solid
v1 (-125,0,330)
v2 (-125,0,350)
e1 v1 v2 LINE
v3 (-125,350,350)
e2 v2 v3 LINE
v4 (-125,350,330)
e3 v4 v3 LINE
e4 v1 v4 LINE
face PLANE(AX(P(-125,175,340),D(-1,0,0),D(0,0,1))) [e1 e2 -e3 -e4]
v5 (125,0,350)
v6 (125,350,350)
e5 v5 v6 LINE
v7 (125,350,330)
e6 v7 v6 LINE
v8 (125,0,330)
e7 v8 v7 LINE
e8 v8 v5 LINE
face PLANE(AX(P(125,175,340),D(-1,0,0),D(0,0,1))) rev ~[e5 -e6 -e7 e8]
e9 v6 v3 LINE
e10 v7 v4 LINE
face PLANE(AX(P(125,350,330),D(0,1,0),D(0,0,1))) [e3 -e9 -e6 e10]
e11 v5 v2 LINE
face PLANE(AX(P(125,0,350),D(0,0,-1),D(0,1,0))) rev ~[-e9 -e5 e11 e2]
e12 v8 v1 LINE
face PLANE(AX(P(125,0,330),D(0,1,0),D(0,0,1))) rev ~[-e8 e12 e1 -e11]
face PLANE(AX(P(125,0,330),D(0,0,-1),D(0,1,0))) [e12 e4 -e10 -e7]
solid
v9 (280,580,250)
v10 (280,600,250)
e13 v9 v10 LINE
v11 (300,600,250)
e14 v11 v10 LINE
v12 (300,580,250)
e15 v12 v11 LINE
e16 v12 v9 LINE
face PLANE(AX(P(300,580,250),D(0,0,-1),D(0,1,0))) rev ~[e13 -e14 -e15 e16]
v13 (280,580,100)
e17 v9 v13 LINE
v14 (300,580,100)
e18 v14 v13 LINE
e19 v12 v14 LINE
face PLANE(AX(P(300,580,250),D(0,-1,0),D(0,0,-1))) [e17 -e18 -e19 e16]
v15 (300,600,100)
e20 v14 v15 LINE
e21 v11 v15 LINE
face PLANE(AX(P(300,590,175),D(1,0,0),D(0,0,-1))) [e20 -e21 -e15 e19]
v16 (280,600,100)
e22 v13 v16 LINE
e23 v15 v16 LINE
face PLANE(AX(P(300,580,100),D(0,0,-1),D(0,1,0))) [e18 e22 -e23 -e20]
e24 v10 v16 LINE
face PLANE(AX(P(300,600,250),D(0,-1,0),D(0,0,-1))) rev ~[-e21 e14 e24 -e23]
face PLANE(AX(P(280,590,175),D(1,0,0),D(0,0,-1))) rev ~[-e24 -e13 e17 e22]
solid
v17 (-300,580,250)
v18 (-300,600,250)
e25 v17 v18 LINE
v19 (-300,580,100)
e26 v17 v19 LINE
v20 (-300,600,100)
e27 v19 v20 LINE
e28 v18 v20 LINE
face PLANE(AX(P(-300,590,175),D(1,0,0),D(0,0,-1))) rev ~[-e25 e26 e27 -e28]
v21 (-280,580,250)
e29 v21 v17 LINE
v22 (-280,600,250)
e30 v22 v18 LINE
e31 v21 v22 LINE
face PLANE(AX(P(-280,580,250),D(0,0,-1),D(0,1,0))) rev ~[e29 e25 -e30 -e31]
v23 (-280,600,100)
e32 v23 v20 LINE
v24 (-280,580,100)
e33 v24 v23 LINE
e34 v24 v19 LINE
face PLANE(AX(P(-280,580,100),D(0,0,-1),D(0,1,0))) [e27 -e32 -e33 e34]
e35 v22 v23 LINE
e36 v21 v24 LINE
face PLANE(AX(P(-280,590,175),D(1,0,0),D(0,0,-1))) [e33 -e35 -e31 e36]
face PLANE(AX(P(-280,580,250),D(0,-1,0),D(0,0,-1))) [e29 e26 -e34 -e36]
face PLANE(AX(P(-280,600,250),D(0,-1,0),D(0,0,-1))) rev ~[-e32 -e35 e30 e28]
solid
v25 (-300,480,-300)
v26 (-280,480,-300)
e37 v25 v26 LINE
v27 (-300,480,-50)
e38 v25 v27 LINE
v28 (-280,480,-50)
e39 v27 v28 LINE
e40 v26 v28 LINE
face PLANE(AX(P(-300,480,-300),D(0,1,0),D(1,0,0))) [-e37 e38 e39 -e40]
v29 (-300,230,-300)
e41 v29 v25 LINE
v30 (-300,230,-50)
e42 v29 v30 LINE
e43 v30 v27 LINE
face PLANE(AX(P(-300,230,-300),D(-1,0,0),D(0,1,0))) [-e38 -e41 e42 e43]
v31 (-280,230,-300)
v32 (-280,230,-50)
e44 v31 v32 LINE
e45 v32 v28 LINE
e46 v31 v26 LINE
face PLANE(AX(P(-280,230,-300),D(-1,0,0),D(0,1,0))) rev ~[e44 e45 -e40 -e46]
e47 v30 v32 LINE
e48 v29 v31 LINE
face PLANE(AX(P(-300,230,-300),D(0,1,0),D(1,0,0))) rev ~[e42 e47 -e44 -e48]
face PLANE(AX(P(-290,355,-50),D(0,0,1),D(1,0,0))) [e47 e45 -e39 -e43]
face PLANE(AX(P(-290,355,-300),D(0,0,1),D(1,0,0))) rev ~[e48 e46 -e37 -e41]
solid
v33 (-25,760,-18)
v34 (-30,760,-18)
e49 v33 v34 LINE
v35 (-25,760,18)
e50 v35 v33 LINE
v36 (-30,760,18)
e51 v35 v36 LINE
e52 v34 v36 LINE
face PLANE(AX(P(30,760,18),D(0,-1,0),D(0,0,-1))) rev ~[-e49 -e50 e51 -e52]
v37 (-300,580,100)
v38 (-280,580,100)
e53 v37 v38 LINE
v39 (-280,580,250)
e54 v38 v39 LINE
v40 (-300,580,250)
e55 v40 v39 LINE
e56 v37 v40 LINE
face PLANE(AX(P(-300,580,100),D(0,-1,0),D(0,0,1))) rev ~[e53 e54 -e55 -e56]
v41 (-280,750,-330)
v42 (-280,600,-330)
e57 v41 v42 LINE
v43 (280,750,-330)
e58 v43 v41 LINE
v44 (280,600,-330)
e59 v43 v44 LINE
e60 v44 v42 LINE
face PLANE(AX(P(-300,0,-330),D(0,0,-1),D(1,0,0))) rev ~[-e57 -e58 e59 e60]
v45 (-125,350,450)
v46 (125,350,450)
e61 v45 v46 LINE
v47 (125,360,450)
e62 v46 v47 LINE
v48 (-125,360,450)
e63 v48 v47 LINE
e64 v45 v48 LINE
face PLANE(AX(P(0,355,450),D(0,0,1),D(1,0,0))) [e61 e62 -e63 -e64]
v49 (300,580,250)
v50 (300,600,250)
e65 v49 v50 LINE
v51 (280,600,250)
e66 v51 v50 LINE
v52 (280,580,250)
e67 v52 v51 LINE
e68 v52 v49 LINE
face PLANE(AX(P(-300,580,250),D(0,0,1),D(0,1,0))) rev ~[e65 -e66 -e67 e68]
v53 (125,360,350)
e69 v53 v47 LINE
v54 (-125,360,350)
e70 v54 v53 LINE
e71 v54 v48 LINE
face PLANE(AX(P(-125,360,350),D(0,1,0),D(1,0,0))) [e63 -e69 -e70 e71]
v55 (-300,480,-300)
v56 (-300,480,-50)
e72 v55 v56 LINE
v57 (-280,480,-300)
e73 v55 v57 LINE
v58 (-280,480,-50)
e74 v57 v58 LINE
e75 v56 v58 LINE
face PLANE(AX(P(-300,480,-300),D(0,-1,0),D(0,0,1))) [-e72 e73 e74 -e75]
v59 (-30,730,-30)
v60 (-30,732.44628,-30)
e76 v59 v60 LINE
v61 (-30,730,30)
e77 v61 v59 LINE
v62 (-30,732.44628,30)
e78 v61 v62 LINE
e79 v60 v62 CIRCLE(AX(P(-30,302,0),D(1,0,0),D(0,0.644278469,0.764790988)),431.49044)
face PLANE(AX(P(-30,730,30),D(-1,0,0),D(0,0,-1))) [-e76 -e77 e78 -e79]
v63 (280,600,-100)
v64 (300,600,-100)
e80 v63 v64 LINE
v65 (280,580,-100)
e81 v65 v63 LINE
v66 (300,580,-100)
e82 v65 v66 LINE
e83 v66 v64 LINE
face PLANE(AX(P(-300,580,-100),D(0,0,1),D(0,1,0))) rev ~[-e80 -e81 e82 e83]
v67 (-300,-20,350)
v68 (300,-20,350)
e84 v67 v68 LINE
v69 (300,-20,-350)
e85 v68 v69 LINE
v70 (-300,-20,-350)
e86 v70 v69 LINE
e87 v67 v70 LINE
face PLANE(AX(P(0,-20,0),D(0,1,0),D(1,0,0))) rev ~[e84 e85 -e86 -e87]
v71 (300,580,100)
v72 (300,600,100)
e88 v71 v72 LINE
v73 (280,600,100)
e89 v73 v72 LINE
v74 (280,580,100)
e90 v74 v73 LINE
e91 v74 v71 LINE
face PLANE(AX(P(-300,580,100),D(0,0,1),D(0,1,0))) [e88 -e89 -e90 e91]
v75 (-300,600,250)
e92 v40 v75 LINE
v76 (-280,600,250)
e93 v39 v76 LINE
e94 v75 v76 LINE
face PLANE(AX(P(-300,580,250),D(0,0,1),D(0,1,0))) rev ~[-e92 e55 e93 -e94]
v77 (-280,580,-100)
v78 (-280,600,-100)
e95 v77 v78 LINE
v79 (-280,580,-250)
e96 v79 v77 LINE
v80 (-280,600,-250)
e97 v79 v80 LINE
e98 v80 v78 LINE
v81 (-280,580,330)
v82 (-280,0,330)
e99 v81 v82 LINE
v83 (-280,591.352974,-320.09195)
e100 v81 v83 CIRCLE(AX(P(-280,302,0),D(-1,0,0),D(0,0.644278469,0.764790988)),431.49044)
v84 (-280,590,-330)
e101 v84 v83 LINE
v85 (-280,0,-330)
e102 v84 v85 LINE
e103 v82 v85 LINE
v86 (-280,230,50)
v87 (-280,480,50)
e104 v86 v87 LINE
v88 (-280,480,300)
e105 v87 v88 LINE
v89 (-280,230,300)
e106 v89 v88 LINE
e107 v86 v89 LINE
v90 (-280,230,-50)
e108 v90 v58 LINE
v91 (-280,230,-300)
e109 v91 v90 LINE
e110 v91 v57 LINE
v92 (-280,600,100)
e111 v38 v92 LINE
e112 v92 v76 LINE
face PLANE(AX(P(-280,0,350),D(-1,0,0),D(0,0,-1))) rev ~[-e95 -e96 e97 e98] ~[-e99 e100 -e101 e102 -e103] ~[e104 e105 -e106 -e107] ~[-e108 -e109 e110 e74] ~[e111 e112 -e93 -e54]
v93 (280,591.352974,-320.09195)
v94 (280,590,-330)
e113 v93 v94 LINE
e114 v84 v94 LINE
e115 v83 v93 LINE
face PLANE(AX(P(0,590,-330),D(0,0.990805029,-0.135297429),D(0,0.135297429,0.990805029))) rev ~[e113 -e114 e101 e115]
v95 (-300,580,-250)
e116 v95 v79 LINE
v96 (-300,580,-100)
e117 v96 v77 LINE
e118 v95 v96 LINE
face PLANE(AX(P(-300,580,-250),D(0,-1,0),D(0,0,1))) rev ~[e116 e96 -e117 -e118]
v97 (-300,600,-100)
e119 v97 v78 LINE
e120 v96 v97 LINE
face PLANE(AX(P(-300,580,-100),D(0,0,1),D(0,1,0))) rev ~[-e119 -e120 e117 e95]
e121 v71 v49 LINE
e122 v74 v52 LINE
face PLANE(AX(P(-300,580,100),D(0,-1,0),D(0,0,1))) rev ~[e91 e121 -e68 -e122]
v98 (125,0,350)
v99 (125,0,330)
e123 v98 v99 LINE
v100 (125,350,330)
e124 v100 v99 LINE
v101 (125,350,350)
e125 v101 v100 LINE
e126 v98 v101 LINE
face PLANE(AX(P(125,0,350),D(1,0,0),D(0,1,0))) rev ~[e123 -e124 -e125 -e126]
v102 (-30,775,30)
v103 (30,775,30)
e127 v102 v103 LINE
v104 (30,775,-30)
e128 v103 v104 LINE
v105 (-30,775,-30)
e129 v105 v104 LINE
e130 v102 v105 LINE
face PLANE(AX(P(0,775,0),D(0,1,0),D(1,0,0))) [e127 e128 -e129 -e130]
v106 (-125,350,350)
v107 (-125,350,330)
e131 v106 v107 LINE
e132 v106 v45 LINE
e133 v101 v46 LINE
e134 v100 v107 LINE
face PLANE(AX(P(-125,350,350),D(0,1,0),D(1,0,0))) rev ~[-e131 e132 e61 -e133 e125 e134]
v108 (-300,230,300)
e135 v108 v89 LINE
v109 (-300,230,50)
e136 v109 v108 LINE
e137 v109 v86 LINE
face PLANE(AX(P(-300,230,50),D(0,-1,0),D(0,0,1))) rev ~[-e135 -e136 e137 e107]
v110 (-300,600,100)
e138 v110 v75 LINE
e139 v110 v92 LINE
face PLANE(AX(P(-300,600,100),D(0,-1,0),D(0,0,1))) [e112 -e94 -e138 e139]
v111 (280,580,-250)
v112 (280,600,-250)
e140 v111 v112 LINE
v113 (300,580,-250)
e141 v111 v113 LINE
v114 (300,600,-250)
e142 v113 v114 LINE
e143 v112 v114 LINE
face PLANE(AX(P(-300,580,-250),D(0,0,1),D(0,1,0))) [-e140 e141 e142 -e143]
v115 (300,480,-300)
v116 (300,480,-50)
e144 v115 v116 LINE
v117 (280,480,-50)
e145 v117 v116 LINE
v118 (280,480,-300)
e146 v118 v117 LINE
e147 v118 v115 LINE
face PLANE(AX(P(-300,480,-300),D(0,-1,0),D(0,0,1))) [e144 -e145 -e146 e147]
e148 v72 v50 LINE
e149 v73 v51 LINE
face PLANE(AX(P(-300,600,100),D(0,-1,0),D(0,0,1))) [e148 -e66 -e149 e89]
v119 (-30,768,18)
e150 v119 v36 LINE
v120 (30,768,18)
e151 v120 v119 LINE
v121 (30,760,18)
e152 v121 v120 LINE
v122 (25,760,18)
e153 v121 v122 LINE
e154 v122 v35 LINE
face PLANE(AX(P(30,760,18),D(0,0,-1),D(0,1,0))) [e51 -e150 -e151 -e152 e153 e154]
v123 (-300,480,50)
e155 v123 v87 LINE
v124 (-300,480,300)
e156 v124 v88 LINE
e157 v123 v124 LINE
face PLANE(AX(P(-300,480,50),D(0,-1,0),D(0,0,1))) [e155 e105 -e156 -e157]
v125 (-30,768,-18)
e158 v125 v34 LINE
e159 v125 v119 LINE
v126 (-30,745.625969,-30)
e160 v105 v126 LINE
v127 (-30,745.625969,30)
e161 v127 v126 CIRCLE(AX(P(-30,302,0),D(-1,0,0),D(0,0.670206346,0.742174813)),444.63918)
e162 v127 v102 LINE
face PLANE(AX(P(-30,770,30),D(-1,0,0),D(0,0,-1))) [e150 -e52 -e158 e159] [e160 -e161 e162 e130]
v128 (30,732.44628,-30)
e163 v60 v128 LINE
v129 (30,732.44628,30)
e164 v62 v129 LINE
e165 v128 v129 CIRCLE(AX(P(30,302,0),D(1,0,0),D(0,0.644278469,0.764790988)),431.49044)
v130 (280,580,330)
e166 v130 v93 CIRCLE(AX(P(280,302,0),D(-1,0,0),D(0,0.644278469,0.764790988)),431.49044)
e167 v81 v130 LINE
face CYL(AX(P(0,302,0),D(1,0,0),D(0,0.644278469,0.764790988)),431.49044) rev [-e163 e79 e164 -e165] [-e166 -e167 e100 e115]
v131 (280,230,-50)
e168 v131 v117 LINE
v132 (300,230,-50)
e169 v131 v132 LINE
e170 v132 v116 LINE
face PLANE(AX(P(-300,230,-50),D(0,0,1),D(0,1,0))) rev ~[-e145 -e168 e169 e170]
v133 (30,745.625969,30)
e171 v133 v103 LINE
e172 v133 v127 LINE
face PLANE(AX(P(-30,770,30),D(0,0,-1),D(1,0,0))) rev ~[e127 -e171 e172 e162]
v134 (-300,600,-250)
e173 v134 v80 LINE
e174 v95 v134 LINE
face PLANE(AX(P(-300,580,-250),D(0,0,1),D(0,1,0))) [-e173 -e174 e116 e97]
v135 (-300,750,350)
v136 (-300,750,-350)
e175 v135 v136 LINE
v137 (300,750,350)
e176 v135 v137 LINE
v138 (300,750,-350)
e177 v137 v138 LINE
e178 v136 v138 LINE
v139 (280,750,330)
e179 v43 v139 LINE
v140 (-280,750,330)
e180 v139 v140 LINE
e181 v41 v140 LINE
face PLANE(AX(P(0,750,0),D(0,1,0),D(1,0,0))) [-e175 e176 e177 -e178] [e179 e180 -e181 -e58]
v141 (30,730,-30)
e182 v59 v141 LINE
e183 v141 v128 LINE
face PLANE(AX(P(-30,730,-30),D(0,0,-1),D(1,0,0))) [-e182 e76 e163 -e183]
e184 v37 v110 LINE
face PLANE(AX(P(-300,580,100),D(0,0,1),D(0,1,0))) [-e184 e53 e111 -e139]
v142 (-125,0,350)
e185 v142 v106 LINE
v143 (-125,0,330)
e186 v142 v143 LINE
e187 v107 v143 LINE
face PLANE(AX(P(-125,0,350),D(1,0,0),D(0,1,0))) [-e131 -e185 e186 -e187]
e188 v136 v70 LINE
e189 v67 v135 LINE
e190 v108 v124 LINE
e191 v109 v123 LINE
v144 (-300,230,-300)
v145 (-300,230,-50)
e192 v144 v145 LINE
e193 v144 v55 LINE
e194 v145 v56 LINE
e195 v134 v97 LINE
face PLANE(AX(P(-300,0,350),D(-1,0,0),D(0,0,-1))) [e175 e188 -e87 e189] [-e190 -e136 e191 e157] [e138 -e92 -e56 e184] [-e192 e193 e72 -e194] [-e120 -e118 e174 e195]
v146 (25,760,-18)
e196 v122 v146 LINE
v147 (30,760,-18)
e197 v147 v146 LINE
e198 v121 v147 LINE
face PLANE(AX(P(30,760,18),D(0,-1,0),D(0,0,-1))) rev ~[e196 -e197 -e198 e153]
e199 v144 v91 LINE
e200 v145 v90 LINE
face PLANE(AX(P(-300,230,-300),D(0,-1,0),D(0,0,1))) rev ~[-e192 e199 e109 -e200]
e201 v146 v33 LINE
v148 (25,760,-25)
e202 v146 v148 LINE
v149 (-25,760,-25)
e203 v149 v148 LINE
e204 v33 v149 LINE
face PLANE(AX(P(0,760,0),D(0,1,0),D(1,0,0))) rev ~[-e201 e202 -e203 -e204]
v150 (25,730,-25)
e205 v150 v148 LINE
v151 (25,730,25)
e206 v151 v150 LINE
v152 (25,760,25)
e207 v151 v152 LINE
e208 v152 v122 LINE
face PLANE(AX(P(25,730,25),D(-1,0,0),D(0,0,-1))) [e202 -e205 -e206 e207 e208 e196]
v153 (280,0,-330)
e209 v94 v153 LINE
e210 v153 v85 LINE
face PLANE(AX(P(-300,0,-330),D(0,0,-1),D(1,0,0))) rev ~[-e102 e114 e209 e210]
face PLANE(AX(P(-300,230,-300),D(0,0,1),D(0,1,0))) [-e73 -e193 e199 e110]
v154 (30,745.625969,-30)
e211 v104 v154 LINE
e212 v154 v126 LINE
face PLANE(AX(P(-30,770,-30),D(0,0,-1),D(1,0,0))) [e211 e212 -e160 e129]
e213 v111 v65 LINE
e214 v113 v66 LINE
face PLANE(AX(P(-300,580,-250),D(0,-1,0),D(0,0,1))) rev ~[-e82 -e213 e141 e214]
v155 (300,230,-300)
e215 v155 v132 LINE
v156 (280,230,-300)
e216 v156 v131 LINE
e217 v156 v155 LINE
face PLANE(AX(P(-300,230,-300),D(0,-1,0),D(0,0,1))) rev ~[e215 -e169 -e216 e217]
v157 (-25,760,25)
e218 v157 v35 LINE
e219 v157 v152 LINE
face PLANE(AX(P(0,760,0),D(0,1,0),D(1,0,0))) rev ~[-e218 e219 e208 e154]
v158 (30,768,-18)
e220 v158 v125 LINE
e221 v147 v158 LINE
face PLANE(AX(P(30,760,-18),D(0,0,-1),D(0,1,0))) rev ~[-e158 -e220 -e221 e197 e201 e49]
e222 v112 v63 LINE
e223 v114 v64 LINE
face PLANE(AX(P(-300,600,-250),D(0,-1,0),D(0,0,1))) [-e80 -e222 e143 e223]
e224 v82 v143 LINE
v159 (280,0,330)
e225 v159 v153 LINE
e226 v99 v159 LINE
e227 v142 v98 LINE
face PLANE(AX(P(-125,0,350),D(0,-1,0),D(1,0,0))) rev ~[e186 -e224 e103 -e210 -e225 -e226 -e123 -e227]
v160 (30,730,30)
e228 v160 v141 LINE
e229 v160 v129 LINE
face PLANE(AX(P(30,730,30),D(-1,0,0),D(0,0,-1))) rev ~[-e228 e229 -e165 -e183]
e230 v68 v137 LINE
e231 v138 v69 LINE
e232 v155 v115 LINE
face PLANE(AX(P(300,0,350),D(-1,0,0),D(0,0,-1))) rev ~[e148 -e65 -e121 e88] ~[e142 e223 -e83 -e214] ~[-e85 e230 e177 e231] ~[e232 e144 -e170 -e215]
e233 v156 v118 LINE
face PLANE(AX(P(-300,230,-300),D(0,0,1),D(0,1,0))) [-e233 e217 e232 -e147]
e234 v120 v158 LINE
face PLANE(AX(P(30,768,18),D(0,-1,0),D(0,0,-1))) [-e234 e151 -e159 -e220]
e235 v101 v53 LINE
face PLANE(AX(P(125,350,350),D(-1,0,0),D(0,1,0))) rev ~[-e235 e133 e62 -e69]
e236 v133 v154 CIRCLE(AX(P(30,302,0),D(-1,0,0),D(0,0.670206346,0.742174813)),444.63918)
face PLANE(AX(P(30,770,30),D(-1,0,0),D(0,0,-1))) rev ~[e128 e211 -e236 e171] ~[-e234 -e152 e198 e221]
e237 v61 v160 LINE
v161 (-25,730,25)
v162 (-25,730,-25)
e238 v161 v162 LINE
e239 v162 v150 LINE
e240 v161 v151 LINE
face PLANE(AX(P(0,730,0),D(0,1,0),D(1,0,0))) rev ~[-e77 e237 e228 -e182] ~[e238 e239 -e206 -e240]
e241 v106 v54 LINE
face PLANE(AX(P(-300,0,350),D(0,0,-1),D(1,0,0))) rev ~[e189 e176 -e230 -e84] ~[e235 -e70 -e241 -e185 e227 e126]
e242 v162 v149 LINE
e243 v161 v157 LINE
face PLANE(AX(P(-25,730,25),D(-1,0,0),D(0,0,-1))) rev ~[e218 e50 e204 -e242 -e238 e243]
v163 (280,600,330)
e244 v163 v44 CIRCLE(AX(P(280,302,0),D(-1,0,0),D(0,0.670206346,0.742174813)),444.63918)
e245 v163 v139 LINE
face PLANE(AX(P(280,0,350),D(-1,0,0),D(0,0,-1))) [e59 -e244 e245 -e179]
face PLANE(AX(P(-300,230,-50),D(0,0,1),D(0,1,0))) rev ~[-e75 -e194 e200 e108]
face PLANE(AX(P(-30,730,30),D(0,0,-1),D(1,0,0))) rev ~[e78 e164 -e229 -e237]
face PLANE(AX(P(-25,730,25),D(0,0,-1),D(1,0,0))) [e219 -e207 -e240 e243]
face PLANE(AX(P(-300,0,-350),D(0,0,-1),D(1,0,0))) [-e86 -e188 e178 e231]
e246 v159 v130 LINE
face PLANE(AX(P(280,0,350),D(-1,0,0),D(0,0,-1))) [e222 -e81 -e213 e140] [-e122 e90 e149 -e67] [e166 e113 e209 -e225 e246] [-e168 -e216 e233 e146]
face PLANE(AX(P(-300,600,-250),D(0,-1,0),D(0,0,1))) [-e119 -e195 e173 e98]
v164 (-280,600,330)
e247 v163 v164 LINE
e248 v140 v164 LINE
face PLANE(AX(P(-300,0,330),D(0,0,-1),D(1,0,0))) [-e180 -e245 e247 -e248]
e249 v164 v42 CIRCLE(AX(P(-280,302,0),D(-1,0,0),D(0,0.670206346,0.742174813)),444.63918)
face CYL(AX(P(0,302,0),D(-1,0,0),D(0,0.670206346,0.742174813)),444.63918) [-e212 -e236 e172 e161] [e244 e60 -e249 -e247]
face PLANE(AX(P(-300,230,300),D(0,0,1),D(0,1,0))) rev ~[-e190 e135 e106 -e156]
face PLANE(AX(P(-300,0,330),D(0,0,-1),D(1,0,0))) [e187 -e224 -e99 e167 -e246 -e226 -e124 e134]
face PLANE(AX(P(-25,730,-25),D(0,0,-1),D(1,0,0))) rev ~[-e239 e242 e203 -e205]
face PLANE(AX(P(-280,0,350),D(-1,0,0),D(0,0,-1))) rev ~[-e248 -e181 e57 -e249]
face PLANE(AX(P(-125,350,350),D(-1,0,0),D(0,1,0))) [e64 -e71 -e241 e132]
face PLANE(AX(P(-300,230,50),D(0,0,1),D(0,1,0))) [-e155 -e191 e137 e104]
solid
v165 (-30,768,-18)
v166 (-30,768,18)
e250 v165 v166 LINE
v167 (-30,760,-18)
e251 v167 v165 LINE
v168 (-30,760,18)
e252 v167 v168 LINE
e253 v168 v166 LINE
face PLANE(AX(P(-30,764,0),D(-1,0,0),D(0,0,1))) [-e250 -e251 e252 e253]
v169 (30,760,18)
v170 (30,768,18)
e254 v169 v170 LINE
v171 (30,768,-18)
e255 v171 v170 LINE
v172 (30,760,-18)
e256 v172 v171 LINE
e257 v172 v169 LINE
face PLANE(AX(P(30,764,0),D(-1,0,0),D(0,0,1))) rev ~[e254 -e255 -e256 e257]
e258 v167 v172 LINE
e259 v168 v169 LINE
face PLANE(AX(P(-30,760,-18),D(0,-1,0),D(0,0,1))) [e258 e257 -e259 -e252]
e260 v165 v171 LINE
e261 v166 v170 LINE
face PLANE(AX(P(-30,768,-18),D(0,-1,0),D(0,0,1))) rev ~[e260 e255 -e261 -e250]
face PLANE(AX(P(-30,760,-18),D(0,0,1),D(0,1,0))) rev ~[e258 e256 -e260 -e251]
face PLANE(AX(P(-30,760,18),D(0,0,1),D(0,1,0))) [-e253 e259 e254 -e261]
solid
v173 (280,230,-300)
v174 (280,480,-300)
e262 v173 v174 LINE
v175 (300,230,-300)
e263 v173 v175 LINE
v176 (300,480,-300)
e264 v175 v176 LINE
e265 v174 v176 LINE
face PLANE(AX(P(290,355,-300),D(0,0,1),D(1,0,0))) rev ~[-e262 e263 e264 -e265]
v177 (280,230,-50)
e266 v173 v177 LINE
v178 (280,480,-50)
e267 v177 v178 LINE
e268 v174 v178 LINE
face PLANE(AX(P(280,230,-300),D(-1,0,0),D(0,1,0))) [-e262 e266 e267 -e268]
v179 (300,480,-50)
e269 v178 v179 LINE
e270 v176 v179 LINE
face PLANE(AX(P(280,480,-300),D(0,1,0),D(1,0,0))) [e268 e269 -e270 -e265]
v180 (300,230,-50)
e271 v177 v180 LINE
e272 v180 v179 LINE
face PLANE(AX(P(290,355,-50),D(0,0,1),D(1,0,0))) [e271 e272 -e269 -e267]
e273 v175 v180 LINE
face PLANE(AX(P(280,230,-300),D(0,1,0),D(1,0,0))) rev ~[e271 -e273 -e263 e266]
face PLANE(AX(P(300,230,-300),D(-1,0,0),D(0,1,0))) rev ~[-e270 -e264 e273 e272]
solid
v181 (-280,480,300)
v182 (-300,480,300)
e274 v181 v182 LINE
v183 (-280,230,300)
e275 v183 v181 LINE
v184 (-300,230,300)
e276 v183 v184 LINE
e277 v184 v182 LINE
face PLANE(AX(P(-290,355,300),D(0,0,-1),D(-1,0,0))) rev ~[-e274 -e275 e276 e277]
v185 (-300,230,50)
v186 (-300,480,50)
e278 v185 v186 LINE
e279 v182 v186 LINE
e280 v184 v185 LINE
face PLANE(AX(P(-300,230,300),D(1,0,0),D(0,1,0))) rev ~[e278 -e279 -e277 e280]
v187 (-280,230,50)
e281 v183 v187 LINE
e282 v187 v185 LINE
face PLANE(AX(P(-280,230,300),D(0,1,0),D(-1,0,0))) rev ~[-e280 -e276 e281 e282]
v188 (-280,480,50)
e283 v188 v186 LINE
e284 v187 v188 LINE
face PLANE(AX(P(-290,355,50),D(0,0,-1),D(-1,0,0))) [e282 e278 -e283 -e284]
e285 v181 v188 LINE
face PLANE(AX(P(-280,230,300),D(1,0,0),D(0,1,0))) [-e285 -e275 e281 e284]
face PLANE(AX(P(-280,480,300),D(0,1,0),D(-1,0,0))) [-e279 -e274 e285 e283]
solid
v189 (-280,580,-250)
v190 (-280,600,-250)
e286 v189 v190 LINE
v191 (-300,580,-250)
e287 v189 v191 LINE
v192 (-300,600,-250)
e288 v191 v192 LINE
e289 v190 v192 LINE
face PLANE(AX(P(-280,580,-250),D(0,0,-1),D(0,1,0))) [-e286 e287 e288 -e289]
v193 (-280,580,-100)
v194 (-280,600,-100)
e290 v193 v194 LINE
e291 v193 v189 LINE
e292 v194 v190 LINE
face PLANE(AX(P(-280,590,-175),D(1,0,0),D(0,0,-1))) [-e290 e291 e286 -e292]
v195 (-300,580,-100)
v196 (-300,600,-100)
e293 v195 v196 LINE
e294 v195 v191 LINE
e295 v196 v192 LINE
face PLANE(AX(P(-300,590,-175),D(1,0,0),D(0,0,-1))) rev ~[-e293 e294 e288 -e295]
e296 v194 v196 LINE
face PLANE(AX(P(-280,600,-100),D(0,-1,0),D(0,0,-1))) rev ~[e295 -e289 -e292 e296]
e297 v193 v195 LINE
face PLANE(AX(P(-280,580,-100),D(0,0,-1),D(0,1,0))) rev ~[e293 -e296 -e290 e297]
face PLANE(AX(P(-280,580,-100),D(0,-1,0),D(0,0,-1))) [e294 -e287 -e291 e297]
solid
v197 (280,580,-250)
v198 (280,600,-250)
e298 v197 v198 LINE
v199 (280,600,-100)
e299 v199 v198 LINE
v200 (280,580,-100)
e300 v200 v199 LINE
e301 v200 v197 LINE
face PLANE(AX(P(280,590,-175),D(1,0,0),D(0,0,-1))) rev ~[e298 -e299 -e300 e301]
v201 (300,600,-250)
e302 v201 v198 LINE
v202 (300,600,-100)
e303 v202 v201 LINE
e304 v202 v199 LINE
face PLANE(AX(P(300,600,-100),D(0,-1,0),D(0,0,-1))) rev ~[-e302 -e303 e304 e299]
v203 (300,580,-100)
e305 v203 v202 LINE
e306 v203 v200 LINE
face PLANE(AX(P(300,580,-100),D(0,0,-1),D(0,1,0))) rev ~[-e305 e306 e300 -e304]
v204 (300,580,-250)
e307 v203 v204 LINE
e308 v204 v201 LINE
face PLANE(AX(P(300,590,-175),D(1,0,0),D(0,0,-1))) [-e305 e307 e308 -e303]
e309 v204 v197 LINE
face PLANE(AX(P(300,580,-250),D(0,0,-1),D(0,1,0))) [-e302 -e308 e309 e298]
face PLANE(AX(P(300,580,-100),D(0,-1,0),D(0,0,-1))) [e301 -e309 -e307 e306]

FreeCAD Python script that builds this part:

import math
import FreeCAD as App
import Part
import Sketcher

V = App.Vector


def faces_at(feature, points):
    """Names of the faces that lie closest to the given points."""
    faces = feature.Shape.Faces
    near = lambda p: min(range(len(faces)), key=lambda i: faces[i].distToShape(Part.Vertex(*p))[0])
    return sorted({f"Face{near(p) + 1}" for p in points})


def add_polygon(sketch, points):
    """Adds a closed chain of lines whose ends are joined by coincident constraints."""
    first, n = sketch.GeometryCount, len(points)
    for a, b in zip(points, points[1:] + points[:1]):
        sketch.addGeometry(Part.LineSegment(App.Vector(*a, 0), App.Vector(*b, 0)), False)
    for i in range(n):
        sketch.addConstraint(Sketcher.Constraint("Coincident", first + i, 2, first + (i + 1) % n, 1))

doc = App.newDocument("Part")
body = doc.addObject("PartDesign::Body", "Body")

sketch1 = body.newObject("Sketcher::SketchObject", "Sketch")
sketch1.AttachmentSupport = (doc.getObject("XZ_Plane"), [""])
sketch1.MapMode = "FlatFace"
add_polygon(sketch1, [(-300, -350), (-300, 350), (300, 350), (300, -350)])
sketch1.addConstraint(Sketcher.Constraint("Vertical", 0))
sketch1.addConstraint(Sketcher.Constraint("Horizontal", 1))
sketch1.addConstraint(Sketcher.Constraint("Vertical", 2))
sketch1.addConstraint(Sketcher.Constraint("Horizontal", 3))
sketch1.addConstraint(Sketcher.Constraint("Symmetric", 0, 2, 2, 2, -1, 1))
sketch1.addConstraint(Sketcher.Constraint("DistanceX", 1, 1, 1, 2, 600.0))
sketch1.addConstraint(Sketcher.Constraint("DistanceY", 0, 1, 0, 2, 700.0))
pad1 = body.newObject("PartDesign::Pad", "Pad")
pad1.Profile = sketch1
pad1.Length = 20

sketch2 = body.newObject("Sketcher::SketchObject", "Sketch001")
sketch2.AttachmentSupport = (doc.getObject("XZ_Plane"), [""])
sketch2.MapMode = "FlatFace"
add_polygon(sketch2, [(-300, -350), (-300, 350), (300, 350), (300, -350)])
sketch2.addConstraint(Sketcher.Constraint("Vertical", 0))
sketch2.addConstraint(Sketcher.Constraint("Horizontal", 1))
sketch2.addConstraint(Sketcher.Constraint("Vertical", 2))
sketch2.addConstraint(Sketcher.Constraint("Horizontal", 3))
sketch2.addConstraint(Sketcher.Constraint("Symmetric", 0, 2, 2, 2, -1, 1))
sketch2.addConstraint(Sketcher.Constraint("DistanceX", 1, 1, 1, 2, 600.0))
sketch2.addConstraint(Sketcher.Constraint("DistanceY", 0, 1, 0, 2, 700.0))
pad2 = body.newObject("PartDesign::Pad", "Pad001")
pad2.Profile = sketch2
pad2.Length = 750
pad2.Reversed = True
doc.recompute()

thickness = body.newObject("PartDesign::Thickness", "Thickness")
thickness.Base = (pad2, faces_at(pad2, [(0, 750, 0)]))
thickness.Value = 20
thickness.Reversed = True
thickness.Join = "Intersection"

sketch3 = body.newObject("Sketcher::SketchObject", "Sketch002")
sketch3.AttachmentSupport = (doc.getObject("XY_Plane"), [""])
sketch3.MapMode = "FlatFace"
sketch3.AttachmentOffset = App.Placement(V(0, 0, 330), App.Rotation())
add_polygon(sketch3, [(-280, 600), (-280, 580), (280, 580), (280, 600)])
sketch3.addConstraint(Sketcher.Constraint("Vertical", 0))
sketch3.addConstraint(Sketcher.Constraint("Horizontal", 1))
sketch3.addConstraint(Sketcher.Constraint("Vertical", 2))
sketch3.addConstraint(Sketcher.Constraint("Horizontal", 3))
sketch3.addConstraint(Sketcher.Constraint("DistanceX", 1, 1, 1, 2, 560.0))
sketch3.addConstraint(Sketcher.Constraint("DistanceY", 0, 2, 0, 1, 20.0))
sketch3.addConstraint(Sketcher.Constraint("DistanceX", 0, 2, -1, 1, 280.0))
sketch3.addConstraint(Sketcher.Constraint("DistanceY", -1, 1, 0, 2, 580.0))

sketch4 = body.newObject("Sketcher::SketchObject", "Sketch003")
sketch4.AttachmentSupport = (doc.getObject("YZ_Plane"), [""])
sketch4.MapMode = "FlatFace"
sketch4.addGeometry(Part.ArcOfCircle(Part.Circle(V(302, 0, 0), V(0, 0, 1), 438), math.radians(-49), math.radians(49)), False)
sketch4.addConstraint(Sketcher.Constraint("Symmetric", 0, 1, 0, 2, -1))
sketch4.addConstraint(Sketcher.Constraint("Radius", 0, 438.0))
sketch4.addConstraint(Sketcher.Constraint("DistanceX", -1, 1, 0, 3, 302.0))
sketch4.addConstraint(Sketcher.Constraint("DistanceX", -1, 1, 0, 1, 590.0))
doc.recompute()

additivepipe = body.newObject("PartDesign::AdditivePipe", "AdditivePipe")
additivepipe.Profile = sketch3
additivepipe.Spine = (sketch4, ["Edge1"])

sketch5 = body.newObject("Sketcher::SketchObject", "Sketch004")
sketch5.AttachmentSupport = (doc.getObject("YZ_Plane"), [""])
sketch5.MapMode = "FlatFace"
sketch5.AttachmentOffset = App.Placement(V(0, 0, -300), App.Rotation())
add_polygon(sketch5, [(480, -300), (230, -300), (230, -50), (480, -50)])
sketch5.addConstraint(Sketcher.Constraint("Horizontal", 0))
sketch5.addConstraint(Sketcher.Constraint("Vertical", 1))
sketch5.addConstraint(Sketcher.Constraint("Horizontal", 2))
sketch5.addConstraint(Sketcher.Constraint("Vertical", 3))
sketch5.addConstraint(Sketcher.Constraint("Equal", 2, 1))
sketch5.addConstraint(Sketcher.Constraint("DistanceX", 0, 2, 0, 1, 250.0))
sketch5.addConstraint(Sketcher.Constraint("DistanceX", -1, 1, 0, 2, 230.0))
sketch5.addConstraint(Sketcher.Constraint("DistanceY", 0, 2, -1, 1, 300.0))
pocket1 = body.newObject("PartDesign::Pocket", "Pocket")
pocket1.Profile = sketch5
pocket1.Type = "ThroughAll"
pocket1.Reversed = True

sketch6 = body.newObject("Sketcher::SketchObject", "Sketch005")
sketch6.AttachmentSupport = (doc.getObject("YZ_Plane"), [""])
sketch6.MapMode = "FlatFace"
sketch6.AttachmentOffset = App.Placement(V(0, 0, -300), App.Rotation())
add_polygon(sketch6, [(480, 50), (230, 50), (230, 300), (480, 300)])
sketch6.addConstraint(Sketcher.Constraint("Horizontal", 0))
sketch6.addConstraint(Sketcher.Constraint("Vertical", 1))
sketch6.addConstraint(Sketcher.Constraint("Horizontal", 2))
sketch6.addConstraint(Sketcher.Constraint("Vertical", 3))
sketch6.addConstraint(Sketcher.Constraint("Equal", 2, 1))
sketch6.addConstraint(Sketcher.Constraint("DistanceX", 0, 2, 0, 1, 250.0))
sketch6.addConstraint(Sketcher.Constraint("DistanceX", -1, 1, 0, 2, 230.0))
sketch6.addConstraint(Sketcher.Constraint("DistanceY", -1, 1, 0, 2, 50.0))
pocket2 = body.newObject("PartDesign::Pocket", "Pocket001")
pocket2.Profile = sketch6
pocket2.Length = 170
pocket2.Reversed = True

sketch7 = body.newObject("Sketcher::SketchObject", "Sketch006")
sketch7.AttachmentSupport = (doc.getObject("YZ_Plane"), [""])
sketch7.MapMode = "FlatFace"
sketch7.AttachmentOffset = App.Placement(V(0, 0, -300), App.Rotation())
add_polygon(sketch7, [(600, -250), (580, -250), (580, -100), (600, -100)])
sketch7.addConstraint(Sketcher.Constraint("Horizontal", 0))
sketch7.addConstraint(Sketcher.Constraint("Vertical", 1))
sketch7.addConstraint(Sketcher.Constraint("Horizontal", 2))
sketch7.addConstraint(Sketcher.Constraint("Vertical", 3))
sketch7.addConstraint(Sketcher.Constraint("DistanceX", 0, 2, 0, 1, 20.0))
sketch7.addConstraint(Sketcher.Constraint("DistanceY", 1, 1, 1, 2, 150.0))
sketch7.addConstraint(Sketcher.Constraint("DistanceX", -1, 1, 0, 2, 580.0))
sketch7.addConstraint(Sketcher.Constraint("DistanceY", 0, 2, -1, 1, 250.0))
pocket3 = body.newObject("PartDesign::Pocket", "Pocket002")
pocket3.Profile = sketch7
pocket3.Type = "ThroughAll"
pocket3.Reversed = True

sketch8 = body.newObject("Sketcher::SketchObject", "Sketch007")
sketch8.AttachmentSupport = (doc.getObject("YZ_Plane"), [""])
sketch8.MapMode = "FlatFace"
sketch8.AttachmentOffset = App.Placement(V(0, 0, -300), App.Rotation())
add_polygon(sketch8, [(600, 100), (580, 100), (580, 250), (600, 250)])
sketch8.addConstraint(Sketcher.Constraint("Horizontal", 0))
sketch8.addConstraint(Sketcher.Constraint("Vertical", 1))
sketch8.addConstraint(Sketcher.Constraint("Horizontal", 2))
sketch8.addConstraint(Sketcher.Constraint("Vertical", 3))
sketch8.addConstraint(Sketcher.Constraint("DistanceX", 0, 2, 0, 1, 20.0))
sketch8.addConstraint(Sketcher.Constraint("DistanceY", 1, 1, 1, 2, 150.0))
sketch8.addConstraint(Sketcher.Constraint("DistanceX", -1, 1, 0, 2, 580.0))
sketch8.addConstraint(Sketcher.Constraint("DistanceY", -1, 1, 0, 2, 100.0))
pocket4 = body.newObject("PartDesign::Pocket", "Pocket003")
pocket4.Profile = sketch8
pocket4.Type = "ThroughAll"
pocket4.Reversed = True

sketch9 = body.newObject("Sketcher::SketchObject", "Sketch008")
sketch9.AttachmentSupport = (doc.getObject("XY_Plane"), [""])
sketch9.MapMode = "FlatFace"
sketch9.AttachmentOffset = App.Placement(V(0, 0, 350), App.Rotation())
add_polygon(sketch9, [(-125, 350), (-125, 0), (125, 0), (125, 350)])
sketch9.addConstraint(Sketcher.Constraint("Vertical", 0))
sketch9.addConstraint(Sketcher.Constraint("Horizontal", 1))
sketch9.addConstraint(Sketcher.Constraint("Vertical", 2))
sketch9.addConstraint(Sketcher.Constraint("Horizontal", 3))
sketch9.addConstraint(Sketcher.Constraint("Symmetric", 0, 2, 1, 2, -1, 1))
sketch9.addConstraint(Sketcher.Constraint("DistanceX", 1, 1, 1, 2, 250.0))
sketch9.addConstraint(Sketcher.Constraint("DistanceY", 0, 2, 0, 1, 350.0))
pocket5 = body.newObject("PartDesign::Pocket", "Pocket004")
pocket5.Profile = sketch9
pocket5.Length = 170

sketch10 = body.newObject("Sketcher::SketchObject", "Sketch009")
sketch10.AttachmentSupport = (doc.getObject("XY_Plane"), [""])
sketch10.MapMode = "FlatFace"
sketch10.AttachmentOffset = App.Placement(V(0, 0, 350), App.Rotation())
add_polygon(sketch10, [(-125, 360), (-125, 350), (125, 350), (125, 360)])
sketch10.addConstraint(Sketcher.Constraint("Vertical", 0))
sketch10.addConstraint(Sketcher.Constraint("Horizontal", 1))
sketch10.addConstraint(Sketcher.Constraint("Vertical", 2))
sketch10.addConstraint(Sketcher.Constraint("Horizontal", 3))
sketch10.addConstraint(Sketcher.Constraint("DistanceX", 1, 1, 1, 2, 250.0))
sketch10.addConstraint(Sketcher.Constraint("DistanceY", 0, 2, 0, 1, 10.0))
sketch10.addConstraint(Sketcher.Constraint("DistanceX", 0, 2, -1, 1, 125.0))
sketch10.addConstraint(Sketcher.Constraint("DistanceY", -1, 1, 0, 2, 350.0))
pad3 = body.newObject("PartDesign::Pad", "Pad002")
pad3.Profile = sketch10
pad3.Length = 100

sketch11 = body.newObject("Sketcher::SketchObject", "Sketch010")
sketch11.AttachmentSupport = (doc.getObject("XZ_Plane"), [""])
sketch11.MapMode = "FlatFace"
sketch11.AttachmentOffset = App.Placement(V(0, 0, -730), App.Rotation())
add_polygon(sketch11, [(-30, -30), (-30, 30), (30, 30), (30, -30)])
sketch11.addConstraint(Sketcher.Constraint("Vertical", 0))
sketch11.addConstraint(Sketcher.Constraint("Horizontal", 1))
sketch11.addConstraint(Sketcher.Constraint("Vertical", 2))
sketch11.addConstraint(Sketcher.Constraint("Horizontal", 3))
sketch11.addConstraint(Sketcher.Constraint("Symmetric", 0, 2, 2, 2, -1, 1))
sketch11.addConstraint(Sketcher.Constraint("Equal", 3, 0))
sketch11.addConstraint(Sketcher.Constraint("DistanceX", 1, 1, 1, 2, 60.0))
pad4 = body.newObject("PartDesign::Pad", "Pad003")
pad4.Profile = sketch11
pad4.Length = 40
pad4.Reversed = True

sketch12 = body.newObject("Sketcher::SketchObject", "Sketch011")
sketch12.AttachmentSupport = (doc.getObject("XZ_Plane"), [""])
sketch12.MapMode = "FlatFace"
sketch12.AttachmentOffset = App.Placement(V(0, 0, -730), App.Rotation())
add_polygon(sketch12, [(-25, -25), (-25, 25), (25, 25), (25, -25)])
sketch12.addConstraint(Sketcher.Constraint("Vertical", 0))
sketch12.addConstraint(Sketcher.Constraint("Horizontal", 1))
sketch12.addConstraint(Sketcher.Constraint("Vertical", 2))
sketch12.addConstraint(Sketcher.Constraint("Horizontal", 3))
sketch12.addConstraint(Sketcher.Constraint("Symmetric", 0, 2, 2, 2, -1, 1))
sketch12.addConstraint(Sketcher.Constraint("Equal", 3, 0))
sketch12.addConstraint(Sketcher.Constraint("DistanceX", 1, 1, 1, 2, 50.0))
pocket6 = body.newObject("PartDesign::Pocket", "Pocket005")
pocket6.Profile = sketch12
pocket6.Length = 30

sketch13 = body.newObject("Sketcher::SketchObject", "Sketch012")
sketch13.AttachmentSupport = (doc.getObject("XZ_Plane"), [""])
sketch13.MapMode = "FlatFace"
sketch13.AttachmentOffset = App.Placement(V(0, 0, -770), App.Rotation())
add_polygon(sketch13, [(-30, -30), (-30, 30), (30, 30), (30, -30)])
sketch13.addConstraint(Sketcher.Constraint("Vertical", 0))
sketch13.addConstraint(Sketcher.Constraint("Horizontal", 1))
sketch13.addConstraint(Sketcher.Constraint("Vertical", 2))
sketch13.addConstraint(Sketcher.Constraint("Horizontal", 3))
sketch13.addConstraint(Sketcher.Constraint("Symmetric", 0, 2, 2, 2, -1, 1))
sketch13.addConstraint(Sketcher.Constraint("Equal", 3, 0))
sketch13.addConstraint(Sketcher.Constraint("DistanceX", 1, 1, 1, 2, 60.0))
pad5 = body.newObject("PartDesign::Pad", "Pad004")
pad5.Profile = sketch13
pad5.Length = 5
pad5.Reversed = True

sketch14 = body.newObject("Sketcher::SketchObject", "Sketch013")
sketch14.AttachmentSupport = (doc.getObject("YZ_Plane"), [""])
sketch14.MapMode = "FlatFace"
sketch14.AttachmentOffset = App.Placement(V(0, 0, 30), App.Rotation())
add_polygon(sketch14, [(768, 18), (760, 18), (760, -18), (768, -18)])
sketch14.addConstraint(Sketcher.Constraint("Horizontal", 0))
sketch14.addConstraint(Sketcher.Constraint("Vertical", 1))
sketch14.addConstraint(Sketcher.Constraint("Horizontal", 2))
sketch14.addConstraint(Sketcher.Constraint("Vertical", 3))
sketch14.addConstraint(Sketcher.Constraint("DistanceX", 0, 2, 0, 1, 8.0))
sketch14.addConstraint(Sketcher.Constraint("DistanceY", 1, 2, 1, 1, 36.0))
sketch14.addConstraint(Sketcher.Constraint("DistanceX", -1, 1, 0, 2, 760.0))
sketch14.addConstraint(Sketcher.Constraint("DistanceY", -1, 1, 0, 2, 18.0))
pocket7 = body.newObject("PartDesign::Pocket", "Pocket006")
pocket7.Profile = sketch14
pocket7.Length = 63
body2 = doc.addObject("PartDesign::Body", "Body001")

sketch15 = body2.newObject("Sketcher::SketchObject", "Sketch014")
sketch15.AttachmentSupport = (doc.getObject("YZ_Plane001"), [""])
sketch15.MapMode = "FlatFace"
sketch15.AttachmentOffset = App.Placement(V(0, 0, 125), App.Rotation())
add_polygon(sketch15, [(350, 330), (0, 330), (0, 350), (350, 350)])
sketch15.addConstraint(Sketcher.Constraint("Horizontal", 0))
sketch15.addConstraint(Sketcher.Constraint("Vertical", 1))
sketch15.addConstraint(Sketcher.Constraint("Horizontal", 2))
sketch15.addConstraint(Sketcher.Constraint("Vertical", 3))
sketch15.addConstraint(Sketcher.Constraint("PointOnObject", 0, 2, -2))
sketch15.addConstraint(Sketcher.Constraint("DistanceX", 0, 2, 0, 1, 350.0))
sketch15.addConstraint(Sketcher.Constraint("DistanceY", 1, 1, 1, 2, 20.0))
sketch15.addConstraint(Sketcher.Constraint("DistanceY", -1, 1, 0, 2, 330.0))
pad6 = body2.newObject("PartDesign::Pad", "Pad005")
pad6.Profile = sketch15
pad6.Length = 250
pad6.Reversed = True
body3 = doc.addObject("PartDesign::Body", "Body002")

sketch16 = body3.newObject("Sketcher::SketchObject", "Sketch015")
sketch16.AttachmentSupport = (doc.getObject("XY_Plane002"), [""])
sketch16.MapMode = "FlatFace"
sketch16.AttachmentOffset = App.Placement(V(0, 0, -300), App.Rotation())
add_polygon(sketch16, [(280, 480), (280, 230), (300, 230), (300, 480)])
sketch16.addConstraint(Sketcher.Constraint("Vertical", 0))
sketch16.addConstraint(Sketcher.Constraint("Horizontal", 1))
sketch16.addConstraint(Sketcher.Constraint("Vertical", 2))
sketch16.addConstraint(Sketcher.Constraint("Horizontal", 3))
sketch16.addConstraint(Sketcher.Constraint("DistanceX", 1, 1, 1, 2, 20.0))
sketch16.addConstraint(Sketcher.Constraint("DistanceY", 0, 2, 0, 1, 250.0))
sketch16.addConstraint(Sketcher.Constraint("DistanceX", -1, 1, 0, 2, 280.0))
sketch16.addConstraint(Sketcher.Constraint("DistanceY", -1, 1, 0, 2, 230.0))
pad7 = body3.newObject("PartDesign::Pad", "Pad006")
pad7.Profile = sketch16
pad7.Length = 250
body4 = doc.addObject("PartDesign::Body", "Body003")

sketch17 = body4.newObject("Sketcher::SketchObject", "Sketch016")
sketch17.AttachmentSupport = (doc.getObject("XY_Plane003"), [""])
sketch17.MapMode = "FlatFace"
sketch17.AttachmentOffset = App.Placement(V(0, 0, 300), App.Rotation())
add_polygon(sketch17, [(-280, 480), (-280, 230), (-300, 230), (-300, 480)])
sketch17.addConstraint(Sketcher.Constraint("Vertical", 0))
sketch17.addConstraint(Sketcher.Constraint("Horizontal", 1))
sketch17.addConstraint(Sketcher.Constraint("Vertical", 2))
sketch17.addConstraint(Sketcher.Constraint("Horizontal", 3))
sketch17.addConstraint(Sketcher.Constraint("DistanceX", 1, 2, 1, 1, 20.0))
sketch17.addConstraint(Sketcher.Constraint("DistanceY", 0, 2, 0, 1, 250.0))
sketch17.addConstraint(Sketcher.Constraint("DistanceX", 0, 2, -1, 1, 280.0))
sketch17.addConstraint(Sketcher.Constraint("DistanceY", -1, 1, 0, 2, 230.0))
pad8 = body4.newObject("PartDesign::Pad", "Pad007")
pad8.Profile = sketch17
pad8.Length = 250
pad8.Reversed = True
body5 = doc.addObject("PartDesign::Body", "Body004")

sketch18 = body5.newObject("Sketcher::SketchObject", "Sketch017")
sketch18.AttachmentSupport = (doc.getObject("XY_Plane004"), [""])
sketch18.MapMode = "FlatFace"
sketch18.AttachmentOffset = App.Placement(V(0, 0, -300), App.Rotation())
add_polygon(sketch18, [(-300, 480), (-300, 230), (-280, 230), (-280, 480)])
sketch18.addConstraint(Sketcher.Constraint("Vertical", 0))
sketch18.addConstraint(Sketcher.Constraint("Horizontal", 1))
sketch18.addConstraint(Sketcher.Constraint("Vertical", 2))
sketch18.addConstraint(Sketcher.Constraint("Horizontal", 3))
sketch18.addConstraint(Sketcher.Constraint("DistanceX", 1, 1, 1, 2, 20.0))
sketch18.addConstraint(Sketcher.Constraint("DistanceY", 0, 2, 0, 1, 250.0))
sketch18.addConstraint(Sketcher.Constraint("DistanceX", 0, 2, -1, 1, 300.0))
sketch18.addConstraint(Sketcher.Constraint("DistanceY", -1, 1, 0, 2, 230.0))
pad9 = body5.newObject("PartDesign::Pad", "Pad008")
pad9.Profile = sketch18
pad9.Length = 250
body6 = doc.addObject("PartDesign::Body", "Body005")

sketch19 = body6.newObject("Sketcher::SketchObject", "Sketch018")
sketch19.AttachmentSupport = (doc.getObject("YZ_Plane005"), [""])
sketch19.MapMode = "FlatFace"
sketch19.AttachmentOffset = App.Placement(V(0, 0, -30), App.Rotation())
add_polygon(sketch19, [(768, -18), (760, -18), (760, 18), (768, 18)])
sketch19.addConstraint(Sketcher.Constraint("Horizontal", 0))
sketch19.addConstraint(Sketcher.Constraint("Vertical", 1))
sketch19.addConstraint(Sketcher.Constraint("Horizontal", 2))
sketch19.addConstraint(Sketcher.Constraint("Vertical", 3))
sketch19.addConstraint(Sketcher.Constraint("DistanceX", 0, 2, 0, 1, 8.0))
sketch19.addConstraint(Sketcher.Constraint("DistanceY", 1, 1, 1, 2, 36.0))
sketch19.addConstraint(Sketcher.Constraint("DistanceX", -1, 1, 0, 2, 760.0))
sketch19.addConstraint(Sketcher.Constraint("DistanceY", 0, 2, -1, 1, 18.0))
pad10 = body6.newObject("PartDesign::Pad", "Pad009")
pad10.Profile = sketch19
pad10.Length = 60
body7 = doc.addObject("PartDesign::Body", "Body006")

sketch20 = body7.newObject("Sketcher::SketchObject", "Sketch019")
sketch20.AttachmentSupport = (doc.getObject("YZ_Plane006"), [""])
sketch20.MapMode = "FlatFace"
sketch20.AttachmentOffset = App.Placement(V(0, 0, -280), App.Rotation())
add_polygon(sketch20, [(600, -100), (580, -100), (580, -250), (600, -250)])
sketch20.addConstraint(Sketcher.Constraint("Horizontal", 0))
sketch20.addConstraint(Sketcher.Constraint("Vertical", 1))
sketch20.addConstraint(Sketcher.Constraint("Horizontal", 2))
sketch20.addConstraint(Sketcher.Constraint("Vertical", 3))
sketch20.addConstraint(Sketcher.Constraint("DistanceX", 0, 2, 0, 1, 20.0))
sketch20.addConstraint(Sketcher.Constraint("DistanceY", 1, 2, 1, 1, 150.0))
sketch20.addConstraint(Sketcher.Constraint("DistanceX", -1, 1, 0, 2, 580.0))
sketch20.addConstraint(Sketcher.Constraint("DistanceY", 0, 2, -1, 1, 100.0))
pad11 = body7.newObject("PartDesign::Pad", "Pad010")
pad11.Profile = sketch20
pad11.Length = 20
pad11.Reversed = True
body8 = doc.addObject("PartDesign::Body", "Body007")

sketch21 = body8.newObject("Sketcher::SketchObject", "Sketch020")
sketch21.AttachmentSupport = (doc.getObject("YZ_Plane007"), [""])
sketch21.MapMode = "FlatFace"
sketch21.AttachmentOffset = App.Placement(V(0, 0, -280), App.Rotation())
add_polygon(sketch21, [(600, 250), (580, 250), (580, 100), (600, 100)])
sketch21.addConstraint(Sketcher.Constraint("Horizontal", 0))
sketch21.addConstraint(Sketcher.Constraint("Vertical", 1))
sketch21.addConstraint(Sketcher.Constraint("Horizontal", 2))
sketch21.addConstraint(Sketcher.Constraint("Vertical", 3))
sketch21.addConstraint(Sketcher.Constraint("DistanceX", 0, 2, 0, 1, 20.0))
sketch21.addConstraint(Sketcher.Constraint("DistanceY", 1, 2, 1, 1, 150.0))
sketch21.addConstraint(Sketcher.Constraint("DistanceX", -1, 1, 0, 2, 580.0))
sketch21.addConstraint(Sketcher.Constraint("DistanceY", -1, 1, 0, 2, 250.0))
pad12 = body8.newObject("PartDesign::Pad", "Pad011")
pad12.Profile = sketch21
pad12.Length = 20
pad12.Reversed = True
body9 = doc.addObject("PartDesign::Body", "Body008")

sketch22 = body9.newObject("Sketcher::SketchObject", "Sketch021")
sketch22.AttachmentSupport = (doc.getObject("YZ_Plane008"), [""])
sketch22.MapMode = "FlatFace"
sketch22.AttachmentOffset = App.Placement(V(0, 0, 300), App.Rotation())
add_polygon(sketch22, [(600, -100), (580, -100), (580, -250), (600, -250)])
sketch22.addConstraint(Sketcher.Constraint("Horizontal", 0))
sketch22.addConstraint(Sketcher.Constraint("Vertical", 1))
sketch22.addConstraint(Sketcher.Constraint("Horizontal", 2))
sketch22.addConstraint(Sketcher.Constraint("Vertical", 3))
sketch22.addConstraint(Sketcher.Constraint("DistanceX", 0, 2, 0, 1, 20.0))
sketch22.addConstraint(Sketcher.Constraint("DistanceY", 1, 2, 1, 1, 150.0))
sketch22.addConstraint(Sketcher.Constraint("DistanceX", -1, 1, 0, 2, 580.0))
sketch22.addConstraint(Sketcher.Constraint("DistanceY", 0, 2, -1, 1, 100.0))
pad13 = body9.newObject("PartDesign::Pad", "Pad012")
pad13.Profile = sketch22
pad13.Length = 20
pad13.Reversed = True
body10 = doc.addObject("PartDesign::Body", "Body009")

sketch23 = body10.newObject("Sketcher::SketchObject", "Sketch022")
sketch23.AttachmentSupport = (doc.getObject("YZ_Plane009"), [""])
sketch23.MapMode = "FlatFace"
sketch23.AttachmentOffset = App.Placement(V(0, 0, 300), App.Rotation())
add_polygon(sketch23, [(600, 250), (580, 250), (580, 100), (600, 100)])
sketch23.addConstraint(Sketcher.Constraint("Horizontal", 0))
sketch23.addConstraint(Sketcher.Constraint("Vertical", 1))
sketch23.addConstraint(Sketcher.Constraint("Horizontal", 2))
sketch23.addConstraint(Sketcher.Constraint("Vertical", 3))
sketch23.addConstraint(Sketcher.Constraint("DistanceX", 0, 2, 0, 1, 20.0))
sketch23.addConstraint(Sketcher.Constraint("DistanceY", 1, 2, 1, 1, 150.0))
sketch23.addConstraint(Sketcher.Constraint("DistanceX", -1, 1, 0, 2, 580.0))
sketch23.addConstraint(Sketcher.Constraint("DistanceY", -1, 1, 0, 2, 250.0))
pad14 = body10.newObject("PartDesign::Pad", "Pad013")
pad14.Profile = sketch23
pad14.Length = 20
pad14.Reversed = True

doc.recompute()
